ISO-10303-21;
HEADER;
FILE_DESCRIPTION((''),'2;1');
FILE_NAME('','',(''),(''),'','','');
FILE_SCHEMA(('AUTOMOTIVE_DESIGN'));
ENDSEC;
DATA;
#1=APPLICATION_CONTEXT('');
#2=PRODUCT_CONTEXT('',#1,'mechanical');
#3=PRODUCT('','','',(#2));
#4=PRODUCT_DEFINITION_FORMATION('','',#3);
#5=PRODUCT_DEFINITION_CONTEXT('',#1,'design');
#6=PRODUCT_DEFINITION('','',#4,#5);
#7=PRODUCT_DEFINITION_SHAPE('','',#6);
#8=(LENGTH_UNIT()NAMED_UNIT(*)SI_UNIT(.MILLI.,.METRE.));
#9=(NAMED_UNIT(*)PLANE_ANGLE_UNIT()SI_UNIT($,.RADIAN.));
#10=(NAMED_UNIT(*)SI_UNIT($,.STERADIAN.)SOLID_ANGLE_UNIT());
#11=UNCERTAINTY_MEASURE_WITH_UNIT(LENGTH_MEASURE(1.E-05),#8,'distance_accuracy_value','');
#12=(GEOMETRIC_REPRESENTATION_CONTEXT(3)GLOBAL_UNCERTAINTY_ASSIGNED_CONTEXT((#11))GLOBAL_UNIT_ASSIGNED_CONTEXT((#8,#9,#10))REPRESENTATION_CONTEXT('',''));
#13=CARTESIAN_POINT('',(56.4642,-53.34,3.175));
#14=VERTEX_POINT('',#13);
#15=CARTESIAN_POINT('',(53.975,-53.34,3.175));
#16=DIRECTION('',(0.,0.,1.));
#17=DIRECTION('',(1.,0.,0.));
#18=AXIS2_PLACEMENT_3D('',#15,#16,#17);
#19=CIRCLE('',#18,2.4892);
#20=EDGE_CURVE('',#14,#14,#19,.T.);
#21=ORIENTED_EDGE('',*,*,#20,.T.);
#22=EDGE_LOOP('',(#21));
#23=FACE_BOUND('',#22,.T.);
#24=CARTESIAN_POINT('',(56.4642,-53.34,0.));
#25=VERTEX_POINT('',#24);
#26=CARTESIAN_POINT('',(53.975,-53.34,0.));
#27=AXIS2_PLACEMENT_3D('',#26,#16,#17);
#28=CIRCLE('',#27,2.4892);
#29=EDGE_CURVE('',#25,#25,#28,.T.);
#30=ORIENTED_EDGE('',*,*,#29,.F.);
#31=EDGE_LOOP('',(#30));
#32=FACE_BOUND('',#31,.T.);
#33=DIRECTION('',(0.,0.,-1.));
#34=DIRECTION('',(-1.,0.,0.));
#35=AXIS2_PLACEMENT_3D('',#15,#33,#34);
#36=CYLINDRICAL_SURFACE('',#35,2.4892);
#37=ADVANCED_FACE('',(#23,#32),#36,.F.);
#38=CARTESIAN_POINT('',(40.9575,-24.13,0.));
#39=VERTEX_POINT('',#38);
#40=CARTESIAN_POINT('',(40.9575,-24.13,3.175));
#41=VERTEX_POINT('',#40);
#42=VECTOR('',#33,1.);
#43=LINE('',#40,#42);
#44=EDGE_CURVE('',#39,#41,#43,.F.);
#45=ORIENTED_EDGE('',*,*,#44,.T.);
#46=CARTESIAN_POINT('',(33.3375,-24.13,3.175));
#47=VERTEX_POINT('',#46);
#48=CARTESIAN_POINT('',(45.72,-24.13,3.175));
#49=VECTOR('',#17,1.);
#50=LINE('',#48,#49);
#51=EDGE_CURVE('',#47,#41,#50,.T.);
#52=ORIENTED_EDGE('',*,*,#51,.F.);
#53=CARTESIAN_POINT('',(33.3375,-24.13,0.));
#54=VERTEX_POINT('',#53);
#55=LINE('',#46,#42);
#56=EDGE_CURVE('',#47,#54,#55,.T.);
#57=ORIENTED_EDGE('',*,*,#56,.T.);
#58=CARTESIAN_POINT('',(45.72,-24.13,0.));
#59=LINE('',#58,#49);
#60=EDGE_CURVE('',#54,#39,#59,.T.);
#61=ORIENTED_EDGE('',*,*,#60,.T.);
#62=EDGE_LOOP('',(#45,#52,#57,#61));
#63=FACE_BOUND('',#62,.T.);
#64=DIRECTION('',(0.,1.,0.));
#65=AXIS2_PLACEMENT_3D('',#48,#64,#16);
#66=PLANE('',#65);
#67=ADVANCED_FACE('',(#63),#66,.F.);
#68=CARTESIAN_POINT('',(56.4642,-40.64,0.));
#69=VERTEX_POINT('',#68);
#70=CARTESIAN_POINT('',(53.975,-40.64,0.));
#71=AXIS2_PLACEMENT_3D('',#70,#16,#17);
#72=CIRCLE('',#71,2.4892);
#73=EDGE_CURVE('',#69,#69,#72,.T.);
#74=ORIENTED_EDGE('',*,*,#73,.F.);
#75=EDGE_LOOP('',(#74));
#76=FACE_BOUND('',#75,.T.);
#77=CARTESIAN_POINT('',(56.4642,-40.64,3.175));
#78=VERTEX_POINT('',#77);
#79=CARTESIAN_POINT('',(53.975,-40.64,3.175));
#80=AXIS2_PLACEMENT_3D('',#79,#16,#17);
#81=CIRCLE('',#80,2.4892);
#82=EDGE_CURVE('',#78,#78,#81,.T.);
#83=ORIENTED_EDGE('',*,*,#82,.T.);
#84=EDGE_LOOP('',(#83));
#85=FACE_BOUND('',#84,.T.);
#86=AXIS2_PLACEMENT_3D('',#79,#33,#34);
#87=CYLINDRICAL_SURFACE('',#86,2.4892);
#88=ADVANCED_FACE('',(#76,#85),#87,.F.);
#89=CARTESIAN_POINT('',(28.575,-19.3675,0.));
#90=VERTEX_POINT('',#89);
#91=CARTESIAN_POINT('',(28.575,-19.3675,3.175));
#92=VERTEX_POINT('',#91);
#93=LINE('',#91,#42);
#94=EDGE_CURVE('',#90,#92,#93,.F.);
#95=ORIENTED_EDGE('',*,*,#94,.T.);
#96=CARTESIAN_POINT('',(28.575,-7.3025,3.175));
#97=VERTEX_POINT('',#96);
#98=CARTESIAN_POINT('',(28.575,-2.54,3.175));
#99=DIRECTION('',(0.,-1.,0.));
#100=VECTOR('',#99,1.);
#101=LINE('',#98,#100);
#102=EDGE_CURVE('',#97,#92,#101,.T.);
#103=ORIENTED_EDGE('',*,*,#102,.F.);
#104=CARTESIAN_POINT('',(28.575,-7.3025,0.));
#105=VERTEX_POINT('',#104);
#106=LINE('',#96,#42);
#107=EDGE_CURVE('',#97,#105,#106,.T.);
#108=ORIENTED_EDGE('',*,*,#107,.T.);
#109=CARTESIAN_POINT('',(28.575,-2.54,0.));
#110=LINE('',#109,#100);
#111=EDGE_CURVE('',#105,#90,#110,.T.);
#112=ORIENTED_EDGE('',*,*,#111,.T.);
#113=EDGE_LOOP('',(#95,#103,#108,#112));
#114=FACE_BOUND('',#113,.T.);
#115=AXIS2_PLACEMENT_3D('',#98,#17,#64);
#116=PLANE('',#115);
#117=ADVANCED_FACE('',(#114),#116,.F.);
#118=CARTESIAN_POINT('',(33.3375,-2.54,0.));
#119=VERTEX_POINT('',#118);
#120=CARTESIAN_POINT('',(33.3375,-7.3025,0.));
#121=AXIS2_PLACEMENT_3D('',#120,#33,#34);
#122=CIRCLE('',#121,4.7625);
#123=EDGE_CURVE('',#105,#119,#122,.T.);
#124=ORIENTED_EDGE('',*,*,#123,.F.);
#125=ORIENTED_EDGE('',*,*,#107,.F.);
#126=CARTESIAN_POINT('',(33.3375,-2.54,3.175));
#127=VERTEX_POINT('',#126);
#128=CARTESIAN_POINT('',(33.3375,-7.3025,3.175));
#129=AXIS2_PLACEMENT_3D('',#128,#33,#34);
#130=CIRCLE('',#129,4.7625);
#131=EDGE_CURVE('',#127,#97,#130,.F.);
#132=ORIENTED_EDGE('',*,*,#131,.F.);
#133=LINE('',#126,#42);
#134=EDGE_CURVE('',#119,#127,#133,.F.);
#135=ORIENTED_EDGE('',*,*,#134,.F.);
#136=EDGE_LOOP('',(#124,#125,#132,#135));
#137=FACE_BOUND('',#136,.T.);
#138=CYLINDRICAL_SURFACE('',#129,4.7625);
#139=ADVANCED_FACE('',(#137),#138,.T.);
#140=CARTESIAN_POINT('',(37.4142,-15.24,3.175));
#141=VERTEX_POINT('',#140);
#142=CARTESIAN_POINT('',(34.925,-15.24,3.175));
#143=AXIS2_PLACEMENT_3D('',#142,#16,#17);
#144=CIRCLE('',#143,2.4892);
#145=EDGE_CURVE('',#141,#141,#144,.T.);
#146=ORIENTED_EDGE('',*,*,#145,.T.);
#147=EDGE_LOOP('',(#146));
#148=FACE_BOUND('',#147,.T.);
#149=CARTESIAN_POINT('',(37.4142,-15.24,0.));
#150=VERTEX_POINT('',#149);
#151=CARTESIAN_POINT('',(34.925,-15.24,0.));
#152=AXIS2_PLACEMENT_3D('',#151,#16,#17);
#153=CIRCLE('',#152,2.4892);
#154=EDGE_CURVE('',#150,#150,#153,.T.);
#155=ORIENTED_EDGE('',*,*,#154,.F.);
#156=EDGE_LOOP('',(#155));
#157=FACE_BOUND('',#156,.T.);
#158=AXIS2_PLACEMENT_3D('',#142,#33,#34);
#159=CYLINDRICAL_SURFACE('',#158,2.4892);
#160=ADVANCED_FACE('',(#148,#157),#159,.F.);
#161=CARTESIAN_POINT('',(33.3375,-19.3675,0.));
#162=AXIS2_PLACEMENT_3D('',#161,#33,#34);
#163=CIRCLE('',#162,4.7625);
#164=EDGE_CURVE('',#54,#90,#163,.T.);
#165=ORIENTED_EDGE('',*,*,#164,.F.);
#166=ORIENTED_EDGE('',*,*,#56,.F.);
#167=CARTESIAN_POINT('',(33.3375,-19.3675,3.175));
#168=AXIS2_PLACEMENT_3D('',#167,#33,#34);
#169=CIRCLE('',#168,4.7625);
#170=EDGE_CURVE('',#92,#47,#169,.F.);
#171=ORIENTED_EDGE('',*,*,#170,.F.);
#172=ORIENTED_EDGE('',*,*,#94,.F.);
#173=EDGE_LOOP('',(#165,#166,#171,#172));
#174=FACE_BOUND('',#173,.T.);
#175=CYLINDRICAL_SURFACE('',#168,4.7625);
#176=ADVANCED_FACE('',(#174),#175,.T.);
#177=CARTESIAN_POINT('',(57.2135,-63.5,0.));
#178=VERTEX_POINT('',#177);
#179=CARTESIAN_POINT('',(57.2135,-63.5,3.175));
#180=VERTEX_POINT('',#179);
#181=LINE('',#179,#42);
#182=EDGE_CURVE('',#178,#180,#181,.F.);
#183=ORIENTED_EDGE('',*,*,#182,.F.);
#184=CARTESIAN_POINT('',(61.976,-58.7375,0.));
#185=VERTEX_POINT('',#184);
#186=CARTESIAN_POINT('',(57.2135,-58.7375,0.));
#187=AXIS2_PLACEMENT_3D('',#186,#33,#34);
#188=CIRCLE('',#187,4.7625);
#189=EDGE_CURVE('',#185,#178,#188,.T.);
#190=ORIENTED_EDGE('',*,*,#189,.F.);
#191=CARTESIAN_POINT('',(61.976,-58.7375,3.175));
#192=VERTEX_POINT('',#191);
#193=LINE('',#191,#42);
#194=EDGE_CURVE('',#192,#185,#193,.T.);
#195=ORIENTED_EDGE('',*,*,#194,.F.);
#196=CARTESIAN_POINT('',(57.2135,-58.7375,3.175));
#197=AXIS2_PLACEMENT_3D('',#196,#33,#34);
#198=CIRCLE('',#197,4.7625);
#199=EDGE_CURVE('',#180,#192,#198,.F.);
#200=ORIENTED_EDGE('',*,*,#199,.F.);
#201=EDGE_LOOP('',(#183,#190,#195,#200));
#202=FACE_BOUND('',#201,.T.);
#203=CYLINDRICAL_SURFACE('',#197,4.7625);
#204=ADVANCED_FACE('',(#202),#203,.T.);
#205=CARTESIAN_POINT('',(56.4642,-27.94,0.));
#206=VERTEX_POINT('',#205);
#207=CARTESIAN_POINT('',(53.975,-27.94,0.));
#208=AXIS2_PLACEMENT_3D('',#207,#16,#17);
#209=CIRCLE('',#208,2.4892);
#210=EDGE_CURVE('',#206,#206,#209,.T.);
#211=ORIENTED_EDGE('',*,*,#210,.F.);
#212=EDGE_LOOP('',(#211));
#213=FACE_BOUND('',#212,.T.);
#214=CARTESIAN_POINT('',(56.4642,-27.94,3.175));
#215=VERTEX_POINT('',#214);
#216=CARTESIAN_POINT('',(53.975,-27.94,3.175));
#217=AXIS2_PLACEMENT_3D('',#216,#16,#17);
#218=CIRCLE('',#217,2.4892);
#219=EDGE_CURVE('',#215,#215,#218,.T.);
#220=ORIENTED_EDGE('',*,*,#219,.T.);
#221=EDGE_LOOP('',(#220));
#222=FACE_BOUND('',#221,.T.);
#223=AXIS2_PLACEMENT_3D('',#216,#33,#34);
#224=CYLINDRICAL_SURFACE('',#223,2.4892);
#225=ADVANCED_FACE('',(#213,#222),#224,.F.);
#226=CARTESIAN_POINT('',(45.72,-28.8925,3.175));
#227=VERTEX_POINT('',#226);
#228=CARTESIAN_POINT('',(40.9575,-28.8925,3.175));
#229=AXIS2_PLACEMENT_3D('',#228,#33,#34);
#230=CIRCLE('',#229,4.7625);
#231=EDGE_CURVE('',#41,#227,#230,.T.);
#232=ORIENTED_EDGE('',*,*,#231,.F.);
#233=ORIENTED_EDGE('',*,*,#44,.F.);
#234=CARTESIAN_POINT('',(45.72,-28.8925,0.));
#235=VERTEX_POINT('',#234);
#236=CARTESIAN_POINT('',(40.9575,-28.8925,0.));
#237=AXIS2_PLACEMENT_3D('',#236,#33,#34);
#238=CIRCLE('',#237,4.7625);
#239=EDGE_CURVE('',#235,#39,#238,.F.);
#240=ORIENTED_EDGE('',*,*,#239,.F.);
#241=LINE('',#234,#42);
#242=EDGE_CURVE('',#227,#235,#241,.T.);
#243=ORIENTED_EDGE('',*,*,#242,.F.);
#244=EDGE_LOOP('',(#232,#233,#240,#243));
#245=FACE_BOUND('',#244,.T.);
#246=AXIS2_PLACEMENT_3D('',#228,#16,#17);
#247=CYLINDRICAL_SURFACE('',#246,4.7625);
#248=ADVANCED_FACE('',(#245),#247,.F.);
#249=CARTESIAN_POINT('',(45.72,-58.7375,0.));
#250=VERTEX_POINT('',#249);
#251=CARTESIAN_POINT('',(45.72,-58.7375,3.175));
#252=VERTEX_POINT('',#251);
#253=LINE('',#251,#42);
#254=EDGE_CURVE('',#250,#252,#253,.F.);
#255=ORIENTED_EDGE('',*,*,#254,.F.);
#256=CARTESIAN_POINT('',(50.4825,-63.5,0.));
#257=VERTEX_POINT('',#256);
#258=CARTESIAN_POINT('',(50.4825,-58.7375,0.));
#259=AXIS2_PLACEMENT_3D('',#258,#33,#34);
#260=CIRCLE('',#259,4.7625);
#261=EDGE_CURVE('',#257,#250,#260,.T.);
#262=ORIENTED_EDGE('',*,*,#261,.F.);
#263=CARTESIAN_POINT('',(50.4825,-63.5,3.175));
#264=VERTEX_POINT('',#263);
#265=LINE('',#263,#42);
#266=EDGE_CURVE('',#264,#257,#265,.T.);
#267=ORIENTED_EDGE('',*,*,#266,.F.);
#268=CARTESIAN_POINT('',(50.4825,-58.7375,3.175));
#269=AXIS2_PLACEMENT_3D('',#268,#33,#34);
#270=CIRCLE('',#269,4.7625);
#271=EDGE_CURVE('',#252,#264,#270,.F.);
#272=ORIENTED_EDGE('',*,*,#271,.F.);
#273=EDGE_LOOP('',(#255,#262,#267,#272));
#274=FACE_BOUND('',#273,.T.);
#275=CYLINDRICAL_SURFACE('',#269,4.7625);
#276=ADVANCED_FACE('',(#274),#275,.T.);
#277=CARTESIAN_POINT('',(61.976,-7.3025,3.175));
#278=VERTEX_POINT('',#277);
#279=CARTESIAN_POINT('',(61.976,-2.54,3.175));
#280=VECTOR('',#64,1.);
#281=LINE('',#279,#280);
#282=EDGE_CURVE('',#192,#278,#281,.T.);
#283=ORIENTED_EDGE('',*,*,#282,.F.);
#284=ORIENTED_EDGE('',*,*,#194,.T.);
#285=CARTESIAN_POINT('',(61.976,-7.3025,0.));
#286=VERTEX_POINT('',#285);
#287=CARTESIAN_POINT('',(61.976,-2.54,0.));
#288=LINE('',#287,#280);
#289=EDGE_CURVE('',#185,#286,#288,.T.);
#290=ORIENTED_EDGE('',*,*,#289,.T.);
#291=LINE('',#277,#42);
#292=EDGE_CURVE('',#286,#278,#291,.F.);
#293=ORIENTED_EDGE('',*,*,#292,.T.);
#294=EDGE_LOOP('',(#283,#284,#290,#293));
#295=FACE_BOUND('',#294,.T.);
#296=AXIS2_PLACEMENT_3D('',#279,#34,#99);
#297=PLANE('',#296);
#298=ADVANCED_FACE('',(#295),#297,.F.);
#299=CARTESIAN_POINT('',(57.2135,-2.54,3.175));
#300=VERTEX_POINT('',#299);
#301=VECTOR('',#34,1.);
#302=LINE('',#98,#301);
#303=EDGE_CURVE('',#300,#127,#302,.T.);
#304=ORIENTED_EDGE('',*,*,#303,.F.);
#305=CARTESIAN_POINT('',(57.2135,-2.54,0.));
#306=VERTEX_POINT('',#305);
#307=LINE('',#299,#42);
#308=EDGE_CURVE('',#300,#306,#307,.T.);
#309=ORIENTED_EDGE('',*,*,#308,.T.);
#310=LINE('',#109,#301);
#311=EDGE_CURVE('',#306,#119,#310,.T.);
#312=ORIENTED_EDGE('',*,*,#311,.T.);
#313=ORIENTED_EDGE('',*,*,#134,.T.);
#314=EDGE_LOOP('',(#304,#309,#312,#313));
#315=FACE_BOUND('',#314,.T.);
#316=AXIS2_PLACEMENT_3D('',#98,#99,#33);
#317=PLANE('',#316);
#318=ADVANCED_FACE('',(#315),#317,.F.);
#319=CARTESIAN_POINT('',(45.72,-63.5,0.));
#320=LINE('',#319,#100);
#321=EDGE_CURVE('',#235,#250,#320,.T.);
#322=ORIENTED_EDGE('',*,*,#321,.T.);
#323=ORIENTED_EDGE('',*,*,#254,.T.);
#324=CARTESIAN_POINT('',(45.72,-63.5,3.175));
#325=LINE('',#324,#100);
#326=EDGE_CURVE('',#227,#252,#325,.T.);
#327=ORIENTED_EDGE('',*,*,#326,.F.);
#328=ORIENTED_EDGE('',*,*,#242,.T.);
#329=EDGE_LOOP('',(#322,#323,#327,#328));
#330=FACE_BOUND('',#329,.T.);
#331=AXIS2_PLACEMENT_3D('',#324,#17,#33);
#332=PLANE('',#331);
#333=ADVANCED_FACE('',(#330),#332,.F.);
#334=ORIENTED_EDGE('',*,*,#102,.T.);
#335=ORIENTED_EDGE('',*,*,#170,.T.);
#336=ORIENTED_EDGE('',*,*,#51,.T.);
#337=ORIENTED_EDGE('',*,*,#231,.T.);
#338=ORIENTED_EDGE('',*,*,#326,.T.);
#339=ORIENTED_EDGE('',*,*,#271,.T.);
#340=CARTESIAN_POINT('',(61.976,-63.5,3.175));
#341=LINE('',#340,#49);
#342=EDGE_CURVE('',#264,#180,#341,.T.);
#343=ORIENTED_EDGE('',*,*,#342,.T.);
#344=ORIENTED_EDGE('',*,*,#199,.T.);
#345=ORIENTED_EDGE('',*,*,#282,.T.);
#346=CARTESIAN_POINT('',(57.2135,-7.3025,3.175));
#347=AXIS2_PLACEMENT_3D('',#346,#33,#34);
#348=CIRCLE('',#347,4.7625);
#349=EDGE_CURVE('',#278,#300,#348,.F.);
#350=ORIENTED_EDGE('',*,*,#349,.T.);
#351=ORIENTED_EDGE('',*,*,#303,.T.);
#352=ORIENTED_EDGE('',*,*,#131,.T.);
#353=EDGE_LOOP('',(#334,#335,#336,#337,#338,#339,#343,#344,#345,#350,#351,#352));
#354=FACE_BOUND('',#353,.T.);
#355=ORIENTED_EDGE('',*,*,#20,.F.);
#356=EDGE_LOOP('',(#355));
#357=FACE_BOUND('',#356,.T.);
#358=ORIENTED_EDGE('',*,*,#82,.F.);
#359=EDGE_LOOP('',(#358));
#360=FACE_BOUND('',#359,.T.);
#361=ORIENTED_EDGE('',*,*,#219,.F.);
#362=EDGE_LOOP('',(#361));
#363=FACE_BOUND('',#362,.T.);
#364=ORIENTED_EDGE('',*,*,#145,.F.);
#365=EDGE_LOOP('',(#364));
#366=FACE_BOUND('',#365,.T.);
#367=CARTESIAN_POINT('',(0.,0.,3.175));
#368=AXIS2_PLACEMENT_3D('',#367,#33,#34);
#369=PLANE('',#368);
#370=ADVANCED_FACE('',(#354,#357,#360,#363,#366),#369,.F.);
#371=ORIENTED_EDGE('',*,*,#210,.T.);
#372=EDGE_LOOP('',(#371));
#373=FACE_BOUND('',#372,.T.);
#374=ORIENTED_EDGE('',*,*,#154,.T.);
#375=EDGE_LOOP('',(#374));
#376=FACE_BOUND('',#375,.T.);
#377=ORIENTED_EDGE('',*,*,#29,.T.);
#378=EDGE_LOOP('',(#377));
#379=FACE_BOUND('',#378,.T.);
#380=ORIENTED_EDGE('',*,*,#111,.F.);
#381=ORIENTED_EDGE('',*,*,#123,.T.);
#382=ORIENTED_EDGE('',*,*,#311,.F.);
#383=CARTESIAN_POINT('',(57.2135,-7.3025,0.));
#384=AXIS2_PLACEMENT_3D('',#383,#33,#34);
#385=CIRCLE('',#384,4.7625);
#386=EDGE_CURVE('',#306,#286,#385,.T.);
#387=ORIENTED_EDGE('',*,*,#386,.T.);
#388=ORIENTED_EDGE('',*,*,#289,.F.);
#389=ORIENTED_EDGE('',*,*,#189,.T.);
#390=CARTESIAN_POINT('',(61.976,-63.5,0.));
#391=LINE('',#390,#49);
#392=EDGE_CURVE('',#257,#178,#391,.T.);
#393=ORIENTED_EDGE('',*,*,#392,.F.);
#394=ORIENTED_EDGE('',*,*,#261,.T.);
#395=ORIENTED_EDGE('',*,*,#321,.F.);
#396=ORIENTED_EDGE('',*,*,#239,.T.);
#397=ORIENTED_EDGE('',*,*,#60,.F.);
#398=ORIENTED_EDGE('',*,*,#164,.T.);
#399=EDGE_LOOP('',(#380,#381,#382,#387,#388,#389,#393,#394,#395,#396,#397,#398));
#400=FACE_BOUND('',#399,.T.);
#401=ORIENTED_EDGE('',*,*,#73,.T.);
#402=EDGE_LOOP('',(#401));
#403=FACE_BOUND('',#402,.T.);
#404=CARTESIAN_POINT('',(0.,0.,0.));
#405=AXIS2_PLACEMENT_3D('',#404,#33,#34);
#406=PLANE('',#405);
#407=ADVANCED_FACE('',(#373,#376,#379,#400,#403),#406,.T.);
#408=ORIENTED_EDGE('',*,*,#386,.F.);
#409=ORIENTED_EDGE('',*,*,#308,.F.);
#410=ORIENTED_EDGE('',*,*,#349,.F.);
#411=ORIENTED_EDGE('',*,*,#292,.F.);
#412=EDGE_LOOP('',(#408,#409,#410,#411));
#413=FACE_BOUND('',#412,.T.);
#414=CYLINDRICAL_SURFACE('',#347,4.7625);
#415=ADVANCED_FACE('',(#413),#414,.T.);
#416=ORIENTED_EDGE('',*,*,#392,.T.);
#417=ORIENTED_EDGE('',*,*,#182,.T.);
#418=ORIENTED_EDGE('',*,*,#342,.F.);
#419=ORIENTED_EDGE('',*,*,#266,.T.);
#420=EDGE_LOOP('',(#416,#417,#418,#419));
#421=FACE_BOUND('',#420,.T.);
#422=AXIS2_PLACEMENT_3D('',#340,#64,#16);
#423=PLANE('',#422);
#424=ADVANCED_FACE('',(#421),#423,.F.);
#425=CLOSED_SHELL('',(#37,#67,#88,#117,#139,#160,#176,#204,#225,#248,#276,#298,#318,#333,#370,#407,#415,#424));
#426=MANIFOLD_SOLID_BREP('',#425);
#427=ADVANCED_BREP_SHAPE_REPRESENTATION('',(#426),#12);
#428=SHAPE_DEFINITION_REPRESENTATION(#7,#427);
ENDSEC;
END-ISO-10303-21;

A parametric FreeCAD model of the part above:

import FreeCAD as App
import Part
import Sketcher

V = App.Vector
Q = App.Units.Quantity


def edges_at(feature, points):
    """Names of the edges that pass closest to the given points."""
    edges = feature.Shape.Edges
    near = lambda p: min(range(len(edges)), key=lambda i: edges[i].distToShape(Part.Vertex(*p))[0])
    return sorted({f"Edge{near(p) + 1}" for p in points})


def add_polygon(sketch, points):
    """Adds a closed chain of lines whose ends are joined by coincident constraints."""
    first, n = sketch.GeometryCount, len(points)
    for a, b in zip(points, points[1:] + points[:1]):
        sketch.addGeometry(Part.LineSegment(App.Vector(*a, 0), App.Vector(*b, 0)), False)
    for i in range(n):
        sketch.addConstraint(Sketcher.Constraint("Coincident", first + i, 2, first + (i + 1) % n, 1))

doc = App.newDocument("Part")
body = doc.addObject("PartDesign::Body", "Body")

# Sketch on XY plane
sketch1 = body.newObject("Sketcher::SketchObject", "Sketch")
sketch1.AttachmentSupport = (doc.getObject("XY_Plane"), [""])
sketch1.MapMode = "FlatFace"
add_polygon(sketch1, [(62, -2.5), (28.6, -2.5), (28.6, -24.1), (45.7, -24.1), (45.7, -63.5), (62, -63.5)])  # lines 0-5
sketch1.addGeometry(Part.Circle(V(54, -53.3, 0), V(0, 0, 1), 2.5), False)  # 6
sketch1.addGeometry(Part.Circle(V(54, -40.6, 0), V(0, 0, 1), 2.5), False)  # 7
sketch1.addGeometry(Part.Circle(V(54, -27.9, 0), V(0, 0, 1), 2.5), False)  # 8
sketch1.addGeometry(Part.Circle(V(34.9, -15.2, 0), V(0, 0, 1), 2.5), False)  # 9
sketch1.addConstraint([
    Sketcher.Constraint("Horizontal", 0),
    Sketcher.Constraint("Vertical", 1),
    Sketcher.Constraint("Horizontal", 2),
    Sketcher.Constraint("Vertical", 3),
    Sketcher.Constraint("Horizontal", 4),
    Sketcher.Constraint("Vertical", 5),
    Sketcher.Constraint("Equal", 6, 7),
    Sketcher.Constraint("Equal", 7, 8),
    Sketcher.Constraint("Equal", 8, 9),
    Sketcher.Constraint("Vertical", 6, 3, 7, 3),
    Sketcher.Constraint("Vertical", 7, 3, 8, 3),
    Sketcher.Constraint("Diameter", 6, Q("0.196 in")),
    Sketcher.Constraint("DistanceY", 5, 1, 5, 2, Q("2.4 in")),
    Sketcher.Constraint("DistanceY", 6, 3, 8, 3, Q("1 in")),
    Sketcher.Constraint("DistanceY", 7, 3, 9, 3, Q("1 in")),
    Sketcher.Constraint("DistanceX", 0, 2, 8, 3, Q("1 in")),
    Sketcher.Constraint("DistanceY", 8, 3, 0, 2, Q("1 in")),
    Sketcher.Constraint("DistanceX", 4, 1, 4, 2, Q("0.64 in")),
    Sketcher.Constraint("DistanceY", 1, 2, 1, 1, Q("0.85 in")),
    Sketcher.Constraint("DistanceY", 6, 3, -1, 1, Q("2.1 in")),
    Sketcher.Constraint("DistanceY", 7, 3, -1, 1, Q("1.6 in")),
    Sketcher.Constraint("DistanceX", -1, 1, 2, 2, Q("1.8 in")),
    Sketcher.Constraint("DistanceX", 0, 2, 0, 1, Q("1.315 in")),
    Sketcher.Constraint("DistanceX", 9, 3, 8, 3, Q("0.75 in")),
])
pad1 = body.newObject("PartDesign::Pad", "Pad")
pad1.Profile = sketch1
pad1.Length = Q("0.125 in")
doc.recompute()

fillet = body.newObject("PartDesign::Fillet", "Fillet")
fillet.Base = (pad1, edges_at(pad1, [
    (61.976, -63.5, 1.587),
    (45.72, -63.5, 1.587),
    (45.72, -24.13, 1.587),
    (28.575, -24.13, 1.587),
    (28.575, -2.54, 1.587),
    (61.976, -2.54, 1.587),
]))
fillet.Radius = Q("0.1875 in")

doc.recompute()
